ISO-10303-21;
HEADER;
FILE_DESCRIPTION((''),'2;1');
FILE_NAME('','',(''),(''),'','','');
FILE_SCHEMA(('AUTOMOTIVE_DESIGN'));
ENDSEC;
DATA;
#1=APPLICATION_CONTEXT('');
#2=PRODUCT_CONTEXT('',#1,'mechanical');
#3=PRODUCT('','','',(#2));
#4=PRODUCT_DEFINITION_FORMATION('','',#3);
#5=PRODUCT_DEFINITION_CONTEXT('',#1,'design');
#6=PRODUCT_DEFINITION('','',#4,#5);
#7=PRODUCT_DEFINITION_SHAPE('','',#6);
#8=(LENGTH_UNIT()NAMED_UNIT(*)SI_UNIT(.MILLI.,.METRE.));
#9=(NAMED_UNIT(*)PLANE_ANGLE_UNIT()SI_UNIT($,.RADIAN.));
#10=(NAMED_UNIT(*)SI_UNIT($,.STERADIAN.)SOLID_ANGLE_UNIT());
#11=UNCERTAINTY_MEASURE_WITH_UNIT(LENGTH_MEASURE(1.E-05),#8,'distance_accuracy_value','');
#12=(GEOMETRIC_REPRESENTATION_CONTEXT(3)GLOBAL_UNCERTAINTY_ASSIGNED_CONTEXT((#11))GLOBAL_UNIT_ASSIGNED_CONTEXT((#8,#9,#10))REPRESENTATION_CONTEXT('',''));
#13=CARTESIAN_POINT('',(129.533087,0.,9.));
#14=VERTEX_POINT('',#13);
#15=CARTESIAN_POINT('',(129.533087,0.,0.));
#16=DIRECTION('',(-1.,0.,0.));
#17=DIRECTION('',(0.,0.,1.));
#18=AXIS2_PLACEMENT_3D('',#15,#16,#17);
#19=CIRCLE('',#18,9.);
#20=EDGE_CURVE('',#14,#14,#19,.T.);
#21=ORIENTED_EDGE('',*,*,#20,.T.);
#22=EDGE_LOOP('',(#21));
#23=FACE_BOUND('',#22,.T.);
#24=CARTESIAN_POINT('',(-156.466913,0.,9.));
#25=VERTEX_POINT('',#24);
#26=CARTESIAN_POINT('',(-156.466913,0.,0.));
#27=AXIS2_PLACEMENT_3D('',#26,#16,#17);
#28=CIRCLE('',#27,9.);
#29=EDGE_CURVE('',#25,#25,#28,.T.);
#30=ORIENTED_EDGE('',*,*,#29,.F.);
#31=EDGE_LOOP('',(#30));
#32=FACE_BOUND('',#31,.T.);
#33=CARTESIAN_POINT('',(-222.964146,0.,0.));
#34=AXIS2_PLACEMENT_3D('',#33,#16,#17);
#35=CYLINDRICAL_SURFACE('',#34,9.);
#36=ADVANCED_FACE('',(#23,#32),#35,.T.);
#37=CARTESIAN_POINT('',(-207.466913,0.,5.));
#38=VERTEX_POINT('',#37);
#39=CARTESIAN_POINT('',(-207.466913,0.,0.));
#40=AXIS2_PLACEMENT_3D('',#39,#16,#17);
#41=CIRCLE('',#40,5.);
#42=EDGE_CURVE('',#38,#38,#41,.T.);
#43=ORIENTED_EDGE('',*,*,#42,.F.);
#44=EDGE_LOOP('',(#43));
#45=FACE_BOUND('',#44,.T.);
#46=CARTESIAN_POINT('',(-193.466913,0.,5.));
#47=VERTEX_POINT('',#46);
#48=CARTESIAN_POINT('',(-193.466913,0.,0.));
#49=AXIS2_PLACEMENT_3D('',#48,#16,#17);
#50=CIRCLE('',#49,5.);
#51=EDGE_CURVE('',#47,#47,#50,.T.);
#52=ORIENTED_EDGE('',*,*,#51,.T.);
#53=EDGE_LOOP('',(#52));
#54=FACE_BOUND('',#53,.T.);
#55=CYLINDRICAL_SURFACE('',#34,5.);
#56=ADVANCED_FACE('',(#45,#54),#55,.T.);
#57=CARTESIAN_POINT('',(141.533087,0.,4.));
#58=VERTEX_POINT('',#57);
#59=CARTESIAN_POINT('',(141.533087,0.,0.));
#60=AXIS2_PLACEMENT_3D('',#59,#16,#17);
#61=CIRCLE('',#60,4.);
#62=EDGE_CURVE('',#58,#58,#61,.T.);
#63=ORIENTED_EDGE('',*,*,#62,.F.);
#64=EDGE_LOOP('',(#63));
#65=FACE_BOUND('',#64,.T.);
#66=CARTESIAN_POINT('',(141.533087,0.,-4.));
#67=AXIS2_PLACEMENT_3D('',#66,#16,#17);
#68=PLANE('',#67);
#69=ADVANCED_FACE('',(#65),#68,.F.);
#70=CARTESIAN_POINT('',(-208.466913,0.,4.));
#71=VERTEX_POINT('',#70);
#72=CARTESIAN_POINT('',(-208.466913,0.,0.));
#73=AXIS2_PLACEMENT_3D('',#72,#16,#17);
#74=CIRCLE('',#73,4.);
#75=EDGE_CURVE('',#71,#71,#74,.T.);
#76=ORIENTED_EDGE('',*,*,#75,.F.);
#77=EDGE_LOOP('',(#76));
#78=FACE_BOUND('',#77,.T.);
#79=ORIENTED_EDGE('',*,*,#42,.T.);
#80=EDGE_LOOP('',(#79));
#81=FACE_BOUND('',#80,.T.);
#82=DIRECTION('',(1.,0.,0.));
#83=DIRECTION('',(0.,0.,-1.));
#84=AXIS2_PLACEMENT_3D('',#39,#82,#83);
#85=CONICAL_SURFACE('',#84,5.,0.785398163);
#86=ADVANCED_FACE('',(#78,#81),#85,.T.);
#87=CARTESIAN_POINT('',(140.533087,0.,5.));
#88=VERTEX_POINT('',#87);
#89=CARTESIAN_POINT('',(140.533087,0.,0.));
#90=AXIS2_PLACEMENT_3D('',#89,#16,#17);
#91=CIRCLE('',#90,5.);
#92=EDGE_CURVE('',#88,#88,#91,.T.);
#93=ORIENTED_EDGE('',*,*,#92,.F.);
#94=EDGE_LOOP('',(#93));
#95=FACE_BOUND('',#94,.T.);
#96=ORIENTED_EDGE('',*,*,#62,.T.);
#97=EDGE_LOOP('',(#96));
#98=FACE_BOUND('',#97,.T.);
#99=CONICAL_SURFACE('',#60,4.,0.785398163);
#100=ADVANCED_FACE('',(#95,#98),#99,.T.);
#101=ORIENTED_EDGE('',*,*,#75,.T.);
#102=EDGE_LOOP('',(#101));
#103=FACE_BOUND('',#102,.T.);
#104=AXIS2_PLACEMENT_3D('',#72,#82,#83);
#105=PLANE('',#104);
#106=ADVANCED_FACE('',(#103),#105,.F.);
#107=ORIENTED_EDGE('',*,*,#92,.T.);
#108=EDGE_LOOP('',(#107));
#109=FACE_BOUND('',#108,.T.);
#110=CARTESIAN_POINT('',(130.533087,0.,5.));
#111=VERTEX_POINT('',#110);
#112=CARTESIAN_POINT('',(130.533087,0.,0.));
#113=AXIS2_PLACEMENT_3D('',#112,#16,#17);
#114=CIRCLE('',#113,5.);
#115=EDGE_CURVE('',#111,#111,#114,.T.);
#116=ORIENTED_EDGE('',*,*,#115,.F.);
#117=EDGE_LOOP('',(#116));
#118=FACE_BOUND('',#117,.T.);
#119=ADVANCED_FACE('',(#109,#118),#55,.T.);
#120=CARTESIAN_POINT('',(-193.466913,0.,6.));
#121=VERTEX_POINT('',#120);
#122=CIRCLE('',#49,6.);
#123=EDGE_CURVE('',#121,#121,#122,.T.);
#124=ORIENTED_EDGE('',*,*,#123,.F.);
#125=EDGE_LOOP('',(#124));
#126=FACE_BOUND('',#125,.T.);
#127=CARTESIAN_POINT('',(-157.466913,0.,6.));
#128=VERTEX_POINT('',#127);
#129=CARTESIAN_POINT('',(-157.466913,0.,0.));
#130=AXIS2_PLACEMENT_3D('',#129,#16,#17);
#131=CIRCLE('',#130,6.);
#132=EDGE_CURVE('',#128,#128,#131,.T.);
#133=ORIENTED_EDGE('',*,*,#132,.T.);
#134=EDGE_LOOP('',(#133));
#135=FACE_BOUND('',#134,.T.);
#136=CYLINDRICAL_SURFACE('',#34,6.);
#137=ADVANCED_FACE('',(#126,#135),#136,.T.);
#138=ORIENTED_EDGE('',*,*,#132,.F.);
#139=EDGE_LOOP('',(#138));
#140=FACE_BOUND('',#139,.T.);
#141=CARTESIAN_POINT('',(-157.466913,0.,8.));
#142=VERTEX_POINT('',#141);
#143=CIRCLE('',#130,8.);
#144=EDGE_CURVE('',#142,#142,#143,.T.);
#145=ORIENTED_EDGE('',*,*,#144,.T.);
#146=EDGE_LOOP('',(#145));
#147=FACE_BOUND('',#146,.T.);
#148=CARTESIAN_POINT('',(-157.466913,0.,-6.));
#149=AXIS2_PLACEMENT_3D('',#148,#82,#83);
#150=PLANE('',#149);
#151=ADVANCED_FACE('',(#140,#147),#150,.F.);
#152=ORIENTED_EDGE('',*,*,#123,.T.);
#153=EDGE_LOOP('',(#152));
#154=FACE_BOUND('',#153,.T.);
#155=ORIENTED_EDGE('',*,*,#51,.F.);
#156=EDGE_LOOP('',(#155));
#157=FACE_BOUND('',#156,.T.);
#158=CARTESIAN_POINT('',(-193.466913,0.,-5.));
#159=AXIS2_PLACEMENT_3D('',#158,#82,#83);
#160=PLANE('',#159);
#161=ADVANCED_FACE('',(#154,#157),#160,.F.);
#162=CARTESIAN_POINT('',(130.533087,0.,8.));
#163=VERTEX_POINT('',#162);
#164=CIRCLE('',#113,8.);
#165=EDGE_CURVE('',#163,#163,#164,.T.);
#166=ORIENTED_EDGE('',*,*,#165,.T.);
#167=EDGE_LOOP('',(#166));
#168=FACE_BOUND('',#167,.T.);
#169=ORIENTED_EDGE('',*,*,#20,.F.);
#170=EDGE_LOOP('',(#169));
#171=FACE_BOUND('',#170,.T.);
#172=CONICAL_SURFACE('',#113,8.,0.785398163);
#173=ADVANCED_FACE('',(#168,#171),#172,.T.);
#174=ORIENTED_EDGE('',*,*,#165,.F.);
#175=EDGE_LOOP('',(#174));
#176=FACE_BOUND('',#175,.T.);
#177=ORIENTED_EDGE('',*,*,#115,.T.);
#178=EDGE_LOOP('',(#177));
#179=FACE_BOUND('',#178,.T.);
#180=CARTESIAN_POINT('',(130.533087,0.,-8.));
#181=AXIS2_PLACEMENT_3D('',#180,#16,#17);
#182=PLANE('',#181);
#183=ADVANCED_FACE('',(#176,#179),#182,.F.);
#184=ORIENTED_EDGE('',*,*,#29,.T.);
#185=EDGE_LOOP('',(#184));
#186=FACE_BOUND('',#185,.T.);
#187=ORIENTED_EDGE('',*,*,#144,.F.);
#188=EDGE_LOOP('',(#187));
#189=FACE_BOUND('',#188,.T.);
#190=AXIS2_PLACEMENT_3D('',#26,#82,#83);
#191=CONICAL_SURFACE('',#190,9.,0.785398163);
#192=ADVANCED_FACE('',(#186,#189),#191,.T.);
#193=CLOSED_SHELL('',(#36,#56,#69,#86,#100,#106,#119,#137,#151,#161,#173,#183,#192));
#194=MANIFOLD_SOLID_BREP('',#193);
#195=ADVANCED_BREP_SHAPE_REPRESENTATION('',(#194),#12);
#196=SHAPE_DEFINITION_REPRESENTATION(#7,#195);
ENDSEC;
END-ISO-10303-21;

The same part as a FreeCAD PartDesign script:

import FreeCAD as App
import Part
import Sketcher

V = App.Vector
Q = App.Units.Quantity

doc = App.newDocument("Part")
body = doc.addObject("PartDesign::Body", "Body")

# Sketch on XZ plane
sketch1 = body.newObject("Sketcher::SketchObject", "Sketch")
sketch1.AttachmentSupport = (doc.getObject("XZ_Plane"), [""])
sketch1.MapMode = "FlatFace"
sketch1.addGeometry(Part.LineSegment(V(-208.466913, -4, 0), V(-208.466913, 0, 0)), False)
sketch1.addGeometry(Part.LineSegment(V(-208.466913, 0, 0), V(141.533087, 0, 0)), False)
sketch1.addGeometry(Part.LineSegment(V(141.533087, 0, 0), V(141.533087, -4, 0)), False)
sketch1.addGeometry(Part.LineSegment(V(141.533087, -4, 0), V(140.533087, -5, 0)), False)
sketch1.addGeometry(Part.LineSegment(V(140.533087, -5, 0), V(130.533087, -5, 0)), False)
sketch1.addGeometry(Part.LineSegment(V(130.533087, -5, 0), V(130.533087, -8, 0)), False)
sketch1.addGeometry(Part.LineSegment(V(130.533087, -8, 0), V(129.533087, -9, 0)), False)
sketch1.addGeometry(Part.LineSegment(V(129.533087, -9, 0), V(-156.466913, -9, 0)), False)
sketch1.addGeometry(Part.LineSegment(V(-156.466913, -9, 0), V(-157.466913, -8, 0)), False)
sketch1.addGeometry(Part.LineSegment(V(-157.466913, -8, 0), V(-157.466913, -6, 0)), False)
sketch1.addGeometry(Part.LineSegment(V(-157.466913, -6, 0), V(-193.466913, -6, 0)), False)
sketch1.addGeometry(Part.LineSegment(V(-193.466913, -6, 0), V(-193.466913, -5, 0)), False)
sketch1.addGeometry(Part.LineSegment(V(-193.466913, -5, 0), V(-207.466913, -5, 0)), False)
sketch1.addGeometry(Part.LineSegment(V(-207.466913, -5, 0), V(-208.466913, -4, 0)), False)
sketch1.addConstraint(Sketcher.Constraint("Coincident", 0, 2, 1, 1))
sketch1.addConstraint(Sketcher.Constraint("Coincident", 1, 2, 2, 1))
sketch1.addConstraint(Sketcher.Constraint("Coincident", 2, 2, 3, 1))
sketch1.addConstraint(Sketcher.Constraint("Coincident", 3, 2, 4, 1))
sketch1.addConstraint(Sketcher.Constraint("Coincident", 4, 2, 5, 1))
sketch1.addConstraint(Sketcher.Constraint("Coincident", 5, 2, 6, 1))
sketch1.addConstraint(Sketcher.Constraint("Coincident", 6, 2, 7, 1))
sketch1.addConstraint(Sketcher.Constraint("Coincident", 7, 2, 8, 1))
sketch1.addConstraint(Sketcher.Constraint("Coincident", 8, 2, 9, 1))
sketch1.addConstraint(Sketcher.Constraint("Coincident", 9, 2, 10, 1))
sketch1.addConstraint(Sketcher.Constraint("Coincident", 10, 2, 11, 1))
sketch1.addConstraint(Sketcher.Constraint("Coincident", 11, 2, 12, 1))
sketch1.addConstraint(Sketcher.Constraint("Coincident", 12, 2, 13, 1))
sketch1.addConstraint(Sketcher.Constraint("Coincident", 13, 2, 0, 1))
sketch1.addConstraint(Sketcher.Constraint("Vertical", 0))
sketch1.addConstraint(Sketcher.Constraint("Horizontal", 1))
sketch1.addConstraint(Sketcher.Constraint("Vertical", 2))
sketch1.addConstraint(Sketcher.Constraint("Horizontal", 4))
sketch1.addConstraint(Sketcher.Constraint("Vertical", 5))
sketch1.addConstraint(Sketcher.Constraint("Horizontal", 7))
sketch1.addConstraint(Sketcher.Constraint("Vertical", 9))
sketch1.addConstraint(Sketcher.Constraint("Horizontal", 10))
sketch1.addConstraint(Sketcher.Constraint("Vertical", 11))
sketch1.addConstraint(Sketcher.Constraint("Horizontal", 12))
sketch1.addConstraint(Sketcher.Constraint("PointOnObject", 0, 2, -1))
sketch1.addConstraint(Sketcher.Constraint("Parallel", 3, 6))
sketch1.addConstraint(Sketcher.Constraint("Perpendicular", 6, 8))
sketch1.addConstraint(Sketcher.Constraint("Parallel", 8, 13))
sketch1.addConstraint(Sketcher.Constraint("Horizontal", 5, 2, 8, 2))
sketch1.addConstraint(Sketcher.Constraint("Horizontal", 4, 2, 11, 2))
sketch1.addConstraint(Sketcher.Constraint("Horizontal", 2, 2, 13, 2))
sketch1.addConstraint(Sketcher.Constraint("Equal", 3, 6))
sketch1.addConstraint(Sketcher.Constraint("Equal", 6, 8))
sketch1.addConstraint(Sketcher.Constraint("DistanceX", 1, 1, 1, 2, Q("350 mm")))
sketch1.addConstraint(Sketcher.Constraint("DistanceX", 4, 2, 4, 1, Q("10 mm")))
sketch1.addConstraint(Sketcher.Constraint("DistanceX", 7, 2, 7, 1, Q("286 mm")))
sketch1.addConstraint(Sketcher.Constraint("DistanceX", 10, 2, 10, 1, Q("36 mm")))
sketch1.addConstraint(Sketcher.Constraint("DistanceX", 12, 2, 12, 1, Q("14 mm")))
sketch1.addConstraint(Sketcher.Constraint("DistanceY", 0, 1, 0, 2, Q("4 mm")))
sketch1.addConstraint(Sketcher.Constraint("DistanceY", 5, 2, 5, 1, Q("3 mm")))
sketch1.addConstraint(Sketcher.Constraint("DistanceY", 9, 1, 9, 2, Q("2 mm")))
sketch1.addConstraint(Sketcher.Constraint("DistanceX", 0, 2, -1, 1, Q("208.466913 mm")))
revolution = body.newObject("PartDesign::Revolution", "Revolution")
revolution.Profile = sketch1
revolution.ReferenceAxis = (sketch1, ["H_Axis"])
revolution.Angle = 360

doc.recompute()
